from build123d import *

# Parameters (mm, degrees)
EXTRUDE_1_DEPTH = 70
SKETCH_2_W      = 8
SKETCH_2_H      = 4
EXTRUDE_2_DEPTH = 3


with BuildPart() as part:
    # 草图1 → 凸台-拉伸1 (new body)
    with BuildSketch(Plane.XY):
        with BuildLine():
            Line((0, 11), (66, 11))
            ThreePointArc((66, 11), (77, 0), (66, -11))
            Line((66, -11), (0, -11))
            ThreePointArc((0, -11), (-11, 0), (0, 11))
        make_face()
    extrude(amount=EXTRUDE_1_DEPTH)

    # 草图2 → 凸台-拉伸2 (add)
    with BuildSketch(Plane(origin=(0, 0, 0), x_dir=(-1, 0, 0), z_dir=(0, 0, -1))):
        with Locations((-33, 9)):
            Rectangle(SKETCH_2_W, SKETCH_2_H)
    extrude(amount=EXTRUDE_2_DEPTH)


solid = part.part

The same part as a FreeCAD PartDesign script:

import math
import FreeCAD as App
import Part
import Sketcher

V = App.Vector


def add_polygon(sketch, points):
    """Adds a closed chain of lines whose ends are joined by coincident constraints."""
    first, n = sketch.GeometryCount, len(points)
    for a, b in zip(points, points[1:] + points[:1]):
        sketch.addGeometry(Part.LineSegment(App.Vector(*a, 0), App.Vector(*b, 0)), False)
    for i in range(n):
        sketch.addConstraint(Sketcher.Constraint("Coincident", first + i, 2, first + (i + 1) % n, 1))

doc = App.newDocument("Part")
params = doc.addObject("Spreadsheet::Sheet", "Params")
for row, (alias, value) in enumerate([
    ("sketch1_radius", "11 mm"),
    ("sketch1_width", "66 mm"),
    ("pad1_length", "70 mm"),
    ("sketch2_width", "8 mm"),
    ("sketch2_height", "4 mm"),
    ("pad2_length", "3 mm"),
], start=1):
    params.set(f"A{row}", alias)
    params.set(f"B{row}", "=" + value)
    params.setAlias(f"B{row}", alias)

body = doc.addObject("PartDesign::Body", "Body")

# Sketch on XY plane
sketch1 = body.newObject("Sketcher::SketchObject", "Sketch")
sketch1.AttachmentSupport = (doc.getObject("XY_Plane"), [""])
sketch1.MapMode = "FlatFace"
sketch1.addGeometry([
    Part.LineSegment(V(66, 11, 0), V(0, 11, 0)),
    Part.ArcOfCircle(Part.Circle(V(0, 0, 0), V(0, 0, 1), 11), math.radians(90), math.radians(270)),
    Part.LineSegment(V(0, -11, 0), V(66, -11, 0)),
    Part.ArcOfCircle(Part.Circle(V(66, 0, 0), V(0, 0, 1), 11), math.radians(-90), math.radians(90)),
], False)
sketch1.addConstraint([
    Sketcher.Constraint("Tangent", 0, 2, 1, 1),
    Sketcher.Constraint("Tangent", 1, 2, 2, 1),
    Sketcher.Constraint("Tangent", 2, 2, 3, 1),
    Sketcher.Constraint("Tangent", 3, 2, 0, 1),
    Sketcher.Constraint("Horizontal", 0),
    Sketcher.Constraint("Horizontal", 2),
    Sketcher.Constraint("Coincident", 1, 3, -1, 1),
    Sketcher.Constraint("Radius", 1, 11.0),
    Sketcher.Constraint("DistanceX", 0, 2, 0, 1, 66.0),
])
sketch1.setExpression("Constraints[7]", "Params.sketch1_radius")
sketch1.setExpression("Constraints[8]", "Params.sketch1_width")
pad1 = body.newObject("PartDesign::Pad", "Pad")
pad1.Profile = sketch1
pad1.setExpression("Length", "Params.pad1_length")

# Sketch on XY plane
sketch2 = body.newObject("Sketcher::SketchObject", "Sketch001")
sketch2.AttachmentSupport = (doc.getObject("XY_Plane"), [""])
sketch2.MapMode = "FlatFace"
add_polygon(sketch2, [(37, 11), (37, 7), (29, 7), (29, 11)])  # lines 0-3
sketch2.addConstraint([
    Sketcher.Constraint("Vertical", 0),
    Sketcher.Constraint("Horizontal", 1),
    Sketcher.Constraint("Vertical", 2),
    Sketcher.Constraint("Horizontal", 3),
    Sketcher.Constraint("DistanceX", 1, 2, 1, 1, 8.0),
    Sketcher.Constraint("DistanceY", 0, 2, 0, 1, 4.0),
    Sketcher.Constraint("DistanceX", -1, 1, 0, 2, 37.0),
    Sketcher.Constraint("DistanceY", -1, 1, 0, 2, 7.0),
])
sketch2.setExpression("Constraints[8]", "Params.sketch2_width")
sketch2.setExpression("Constraints[9]", "Params.sketch2_height")
pad2 = body.newObject("PartDesign::Pad", "Pad001")
pad2.Profile = sketch2
pad2.setExpression("Length", "Params.pad2_length")
pad2.Reversed = True

doc.recompute()
